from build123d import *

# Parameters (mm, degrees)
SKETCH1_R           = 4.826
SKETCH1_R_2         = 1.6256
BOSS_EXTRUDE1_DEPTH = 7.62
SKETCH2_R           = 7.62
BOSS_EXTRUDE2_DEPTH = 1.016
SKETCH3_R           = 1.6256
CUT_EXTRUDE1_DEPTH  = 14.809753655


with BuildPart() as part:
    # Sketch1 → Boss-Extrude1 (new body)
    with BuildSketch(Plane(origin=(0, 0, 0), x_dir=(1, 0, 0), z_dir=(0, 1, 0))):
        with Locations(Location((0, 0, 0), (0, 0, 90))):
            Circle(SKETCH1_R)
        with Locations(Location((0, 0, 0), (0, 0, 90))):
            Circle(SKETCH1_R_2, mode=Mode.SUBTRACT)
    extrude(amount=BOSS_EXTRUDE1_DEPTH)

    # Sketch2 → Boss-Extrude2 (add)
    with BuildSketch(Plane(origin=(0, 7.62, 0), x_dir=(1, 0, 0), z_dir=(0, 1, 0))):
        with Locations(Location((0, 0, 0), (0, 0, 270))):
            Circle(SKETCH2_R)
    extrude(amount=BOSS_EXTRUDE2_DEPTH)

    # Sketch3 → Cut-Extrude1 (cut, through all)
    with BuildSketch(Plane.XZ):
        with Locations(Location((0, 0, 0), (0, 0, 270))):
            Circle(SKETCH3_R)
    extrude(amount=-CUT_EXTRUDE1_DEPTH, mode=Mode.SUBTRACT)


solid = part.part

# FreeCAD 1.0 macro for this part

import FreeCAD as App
import Part
import Sketcher
Q = App.Units.Quantity

doc = App.newDocument("Part")
body = doc.addObject("PartDesign::Body", "Body")

sketch1 = doc.addObject("Sketcher::SketchObject", "Sketch")
body.addObject(sketch1)
sketch1.AttachmentSupport = (doc.XZ_Plane, [""])
sketch1.MapMode = "FlatFace"
sketch1.addGeometry(Part.Circle(App.Vector(0, 0, 0), App.Vector(0, 0, 1), 4.826), False)
sketch1.addGeometry(Part.Circle(App.Vector(0, 0, 0), App.Vector(0, 0, 1), 1.6256), False)
sketch1.addConstraint(Sketcher.Constraint("Coincident", 0, 3, -1, 1))
sketch1.addConstraint(Sketcher.Constraint("Coincident", 1, 3, -1, 1))
sketch1.addConstraint(Sketcher.Constraint("Diameter", 0, Q("0.38 in")))
sketch1.addConstraint(Sketcher.Constraint("Diameter", 1, Q("0.128 in")))
pad1 = doc.addObject("PartDesign::Pad", "Pad")
body.addObject(pad1)
pad1.Profile = sketch1
pad1.Length = Q("0.3 in")
pad1.Reversed = True

sketch2 = doc.addObject("Sketcher::SketchObject", "Sketch001")
body.addObject(sketch2)
sketch2.AttachmentSupport = (doc.XZ_Plane, [""])
sketch2.MapMode = "FlatFace"
sketch2.AttachmentOffset = App.Placement(App.Vector(0, 0, -0.3 * 25.4), App.Rotation())
sketch2.addGeometry(Part.Circle(App.Vector(0, 0, 0), App.Vector(0, 0, 1), 7.62), False)
sketch2.addConstraint(Sketcher.Constraint("Coincident", 0, 3, -1, 1))
sketch2.addConstraint(Sketcher.Constraint("Diameter", 0, Q("0.6 in")))
pad2 = doc.addObject("PartDesign::Pad", "Pad001")
body.addObject(pad2)
pad2.Profile = sketch2
pad2.Length = Q("0.04 in")
pad2.Reversed = True

sketch3 = doc.addObject("Sketcher::SketchObject", "Sketch002")
body.addObject(sketch3)
sketch3.AttachmentSupport = (doc.XZ_Plane, [""])
sketch3.MapMode = "FlatFace"
sketch3.addGeometry(Part.Circle(App.Vector(0, 0, 0), App.Vector(0, 0, 1), 1.6256), False)
sketch3.addConstraint(Sketcher.Constraint("Coincident", 0, 3, -1, 1))
sketch3.addConstraint(Sketcher.Constraint("Diameter", 0, Q("0.128 in")))
pocket1 = doc.addObject("PartDesign::Pocket", "Pocket")
body.addObject(pocket1)
pocket1.Profile = sketch3
pocket1.Type = "ThroughAll"

doc.recompute()
